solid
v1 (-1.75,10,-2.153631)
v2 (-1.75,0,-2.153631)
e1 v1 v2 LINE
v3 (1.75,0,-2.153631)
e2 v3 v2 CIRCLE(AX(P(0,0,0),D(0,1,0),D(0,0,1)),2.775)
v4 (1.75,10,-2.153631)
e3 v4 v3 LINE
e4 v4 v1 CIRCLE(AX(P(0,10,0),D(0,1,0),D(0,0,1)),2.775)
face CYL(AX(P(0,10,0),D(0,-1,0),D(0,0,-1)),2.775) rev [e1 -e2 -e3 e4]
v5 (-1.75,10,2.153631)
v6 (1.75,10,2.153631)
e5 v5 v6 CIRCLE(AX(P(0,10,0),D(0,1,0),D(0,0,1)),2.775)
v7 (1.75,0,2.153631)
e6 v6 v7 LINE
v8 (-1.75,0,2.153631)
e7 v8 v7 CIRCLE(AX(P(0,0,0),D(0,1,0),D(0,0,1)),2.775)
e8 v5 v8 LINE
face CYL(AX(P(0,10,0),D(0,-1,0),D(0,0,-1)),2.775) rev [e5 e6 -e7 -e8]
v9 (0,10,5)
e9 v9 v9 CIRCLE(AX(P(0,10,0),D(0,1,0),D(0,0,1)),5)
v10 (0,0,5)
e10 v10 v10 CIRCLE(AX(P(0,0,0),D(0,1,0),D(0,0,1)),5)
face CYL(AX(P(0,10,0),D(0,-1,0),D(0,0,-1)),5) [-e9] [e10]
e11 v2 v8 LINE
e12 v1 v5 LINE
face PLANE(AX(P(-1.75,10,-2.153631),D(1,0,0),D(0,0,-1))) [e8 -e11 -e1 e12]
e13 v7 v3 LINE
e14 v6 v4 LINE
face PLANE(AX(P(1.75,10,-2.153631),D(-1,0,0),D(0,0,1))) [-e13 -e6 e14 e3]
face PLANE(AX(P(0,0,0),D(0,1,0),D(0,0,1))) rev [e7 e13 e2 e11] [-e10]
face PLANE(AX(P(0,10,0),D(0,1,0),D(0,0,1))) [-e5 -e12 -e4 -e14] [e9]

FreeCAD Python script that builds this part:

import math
import FreeCAD as App
import Part
import Sketcher
from FreeCAD import Vector
Q = App.Units.Quantity

doc = App.newDocument("Part")
body = doc.addObject("PartDesign::Body", "Body")

sketch1 = doc.addObject("Sketcher::SketchObject", "Sketch")
body.addObject(sketch1)
sketch1.AttachmentSupport = (doc.XZ_Plane, [""])
sketch1.MapMode = "FlatFace"
sketch1.addGeometry(Part.Circle(Vector(0, 0, 0), Vector(0, 0, 1), 5), False)
sketch1.addGeometry(Part.LineSegment(Vector(-1.8, 2.2, 0), Vector(-1.8, -2.2, 0)), False)
sketch1.addGeometry(Part.ArcOfCircle(Part.Circle(Vector(0, 0, 0), Vector(0, 0, 1), 2.8), math.radians(-129), math.radians(-51)), False)
sketch1.addGeometry(Part.LineSegment(Vector(1.8, -2.2, 0), Vector(1.8, 2.2, 0)), False)
sketch1.addGeometry(Part.ArcOfCircle(Part.Circle(Vector(0, 0, 0), Vector(0, 0, 1), 2.8), math.radians(51), math.radians(129)), False)
sketch1.addConstraint(Sketcher.Constraint("Coincident", 1, 2, 2, 1))
sketch1.addConstraint(Sketcher.Constraint("Coincident", 2, 2, 3, 1))
sketch1.addConstraint(Sketcher.Constraint("Coincident", 3, 2, 4, 1))
sketch1.addConstraint(Sketcher.Constraint("Coincident", 4, 2, 1, 1))
sketch1.addConstraint(Sketcher.Constraint("Vertical", 1))
sketch1.addConstraint(Sketcher.Constraint("Vertical", 3))
sketch1.addConstraint(Sketcher.Constraint("Coincident", 0, 3, -1, 1))
sketch1.addConstraint(Sketcher.Constraint("Coincident", 2, 3, -1, 1))
sketch1.addConstraint(Sketcher.Constraint("Coincident", 4, 3, -1, 1))
sketch1.addConstraint(Sketcher.Constraint("Equal", 2, 4))
sketch1.addConstraint(Sketcher.Constraint("Horizontal", 1, 2, 2, 2))
sketch1.addConstraint(Sketcher.Constraint("Diameter", 0, Q("10 mm")))
sketch1.addConstraint(Sketcher.Constraint("Radius", 2, Q("2.775 mm")))
sketch1.addConstraint(Sketcher.Constraint("DistanceX", 1, 2, 2, 2, Q("3.5 mm")))
pad1 = doc.addObject("PartDesign::Pad", "Pad")
body.addObject(pad1)
pad1.Profile = sketch1
pad1.Length = 10
pad1.Reversed = True

doc.recompute()
